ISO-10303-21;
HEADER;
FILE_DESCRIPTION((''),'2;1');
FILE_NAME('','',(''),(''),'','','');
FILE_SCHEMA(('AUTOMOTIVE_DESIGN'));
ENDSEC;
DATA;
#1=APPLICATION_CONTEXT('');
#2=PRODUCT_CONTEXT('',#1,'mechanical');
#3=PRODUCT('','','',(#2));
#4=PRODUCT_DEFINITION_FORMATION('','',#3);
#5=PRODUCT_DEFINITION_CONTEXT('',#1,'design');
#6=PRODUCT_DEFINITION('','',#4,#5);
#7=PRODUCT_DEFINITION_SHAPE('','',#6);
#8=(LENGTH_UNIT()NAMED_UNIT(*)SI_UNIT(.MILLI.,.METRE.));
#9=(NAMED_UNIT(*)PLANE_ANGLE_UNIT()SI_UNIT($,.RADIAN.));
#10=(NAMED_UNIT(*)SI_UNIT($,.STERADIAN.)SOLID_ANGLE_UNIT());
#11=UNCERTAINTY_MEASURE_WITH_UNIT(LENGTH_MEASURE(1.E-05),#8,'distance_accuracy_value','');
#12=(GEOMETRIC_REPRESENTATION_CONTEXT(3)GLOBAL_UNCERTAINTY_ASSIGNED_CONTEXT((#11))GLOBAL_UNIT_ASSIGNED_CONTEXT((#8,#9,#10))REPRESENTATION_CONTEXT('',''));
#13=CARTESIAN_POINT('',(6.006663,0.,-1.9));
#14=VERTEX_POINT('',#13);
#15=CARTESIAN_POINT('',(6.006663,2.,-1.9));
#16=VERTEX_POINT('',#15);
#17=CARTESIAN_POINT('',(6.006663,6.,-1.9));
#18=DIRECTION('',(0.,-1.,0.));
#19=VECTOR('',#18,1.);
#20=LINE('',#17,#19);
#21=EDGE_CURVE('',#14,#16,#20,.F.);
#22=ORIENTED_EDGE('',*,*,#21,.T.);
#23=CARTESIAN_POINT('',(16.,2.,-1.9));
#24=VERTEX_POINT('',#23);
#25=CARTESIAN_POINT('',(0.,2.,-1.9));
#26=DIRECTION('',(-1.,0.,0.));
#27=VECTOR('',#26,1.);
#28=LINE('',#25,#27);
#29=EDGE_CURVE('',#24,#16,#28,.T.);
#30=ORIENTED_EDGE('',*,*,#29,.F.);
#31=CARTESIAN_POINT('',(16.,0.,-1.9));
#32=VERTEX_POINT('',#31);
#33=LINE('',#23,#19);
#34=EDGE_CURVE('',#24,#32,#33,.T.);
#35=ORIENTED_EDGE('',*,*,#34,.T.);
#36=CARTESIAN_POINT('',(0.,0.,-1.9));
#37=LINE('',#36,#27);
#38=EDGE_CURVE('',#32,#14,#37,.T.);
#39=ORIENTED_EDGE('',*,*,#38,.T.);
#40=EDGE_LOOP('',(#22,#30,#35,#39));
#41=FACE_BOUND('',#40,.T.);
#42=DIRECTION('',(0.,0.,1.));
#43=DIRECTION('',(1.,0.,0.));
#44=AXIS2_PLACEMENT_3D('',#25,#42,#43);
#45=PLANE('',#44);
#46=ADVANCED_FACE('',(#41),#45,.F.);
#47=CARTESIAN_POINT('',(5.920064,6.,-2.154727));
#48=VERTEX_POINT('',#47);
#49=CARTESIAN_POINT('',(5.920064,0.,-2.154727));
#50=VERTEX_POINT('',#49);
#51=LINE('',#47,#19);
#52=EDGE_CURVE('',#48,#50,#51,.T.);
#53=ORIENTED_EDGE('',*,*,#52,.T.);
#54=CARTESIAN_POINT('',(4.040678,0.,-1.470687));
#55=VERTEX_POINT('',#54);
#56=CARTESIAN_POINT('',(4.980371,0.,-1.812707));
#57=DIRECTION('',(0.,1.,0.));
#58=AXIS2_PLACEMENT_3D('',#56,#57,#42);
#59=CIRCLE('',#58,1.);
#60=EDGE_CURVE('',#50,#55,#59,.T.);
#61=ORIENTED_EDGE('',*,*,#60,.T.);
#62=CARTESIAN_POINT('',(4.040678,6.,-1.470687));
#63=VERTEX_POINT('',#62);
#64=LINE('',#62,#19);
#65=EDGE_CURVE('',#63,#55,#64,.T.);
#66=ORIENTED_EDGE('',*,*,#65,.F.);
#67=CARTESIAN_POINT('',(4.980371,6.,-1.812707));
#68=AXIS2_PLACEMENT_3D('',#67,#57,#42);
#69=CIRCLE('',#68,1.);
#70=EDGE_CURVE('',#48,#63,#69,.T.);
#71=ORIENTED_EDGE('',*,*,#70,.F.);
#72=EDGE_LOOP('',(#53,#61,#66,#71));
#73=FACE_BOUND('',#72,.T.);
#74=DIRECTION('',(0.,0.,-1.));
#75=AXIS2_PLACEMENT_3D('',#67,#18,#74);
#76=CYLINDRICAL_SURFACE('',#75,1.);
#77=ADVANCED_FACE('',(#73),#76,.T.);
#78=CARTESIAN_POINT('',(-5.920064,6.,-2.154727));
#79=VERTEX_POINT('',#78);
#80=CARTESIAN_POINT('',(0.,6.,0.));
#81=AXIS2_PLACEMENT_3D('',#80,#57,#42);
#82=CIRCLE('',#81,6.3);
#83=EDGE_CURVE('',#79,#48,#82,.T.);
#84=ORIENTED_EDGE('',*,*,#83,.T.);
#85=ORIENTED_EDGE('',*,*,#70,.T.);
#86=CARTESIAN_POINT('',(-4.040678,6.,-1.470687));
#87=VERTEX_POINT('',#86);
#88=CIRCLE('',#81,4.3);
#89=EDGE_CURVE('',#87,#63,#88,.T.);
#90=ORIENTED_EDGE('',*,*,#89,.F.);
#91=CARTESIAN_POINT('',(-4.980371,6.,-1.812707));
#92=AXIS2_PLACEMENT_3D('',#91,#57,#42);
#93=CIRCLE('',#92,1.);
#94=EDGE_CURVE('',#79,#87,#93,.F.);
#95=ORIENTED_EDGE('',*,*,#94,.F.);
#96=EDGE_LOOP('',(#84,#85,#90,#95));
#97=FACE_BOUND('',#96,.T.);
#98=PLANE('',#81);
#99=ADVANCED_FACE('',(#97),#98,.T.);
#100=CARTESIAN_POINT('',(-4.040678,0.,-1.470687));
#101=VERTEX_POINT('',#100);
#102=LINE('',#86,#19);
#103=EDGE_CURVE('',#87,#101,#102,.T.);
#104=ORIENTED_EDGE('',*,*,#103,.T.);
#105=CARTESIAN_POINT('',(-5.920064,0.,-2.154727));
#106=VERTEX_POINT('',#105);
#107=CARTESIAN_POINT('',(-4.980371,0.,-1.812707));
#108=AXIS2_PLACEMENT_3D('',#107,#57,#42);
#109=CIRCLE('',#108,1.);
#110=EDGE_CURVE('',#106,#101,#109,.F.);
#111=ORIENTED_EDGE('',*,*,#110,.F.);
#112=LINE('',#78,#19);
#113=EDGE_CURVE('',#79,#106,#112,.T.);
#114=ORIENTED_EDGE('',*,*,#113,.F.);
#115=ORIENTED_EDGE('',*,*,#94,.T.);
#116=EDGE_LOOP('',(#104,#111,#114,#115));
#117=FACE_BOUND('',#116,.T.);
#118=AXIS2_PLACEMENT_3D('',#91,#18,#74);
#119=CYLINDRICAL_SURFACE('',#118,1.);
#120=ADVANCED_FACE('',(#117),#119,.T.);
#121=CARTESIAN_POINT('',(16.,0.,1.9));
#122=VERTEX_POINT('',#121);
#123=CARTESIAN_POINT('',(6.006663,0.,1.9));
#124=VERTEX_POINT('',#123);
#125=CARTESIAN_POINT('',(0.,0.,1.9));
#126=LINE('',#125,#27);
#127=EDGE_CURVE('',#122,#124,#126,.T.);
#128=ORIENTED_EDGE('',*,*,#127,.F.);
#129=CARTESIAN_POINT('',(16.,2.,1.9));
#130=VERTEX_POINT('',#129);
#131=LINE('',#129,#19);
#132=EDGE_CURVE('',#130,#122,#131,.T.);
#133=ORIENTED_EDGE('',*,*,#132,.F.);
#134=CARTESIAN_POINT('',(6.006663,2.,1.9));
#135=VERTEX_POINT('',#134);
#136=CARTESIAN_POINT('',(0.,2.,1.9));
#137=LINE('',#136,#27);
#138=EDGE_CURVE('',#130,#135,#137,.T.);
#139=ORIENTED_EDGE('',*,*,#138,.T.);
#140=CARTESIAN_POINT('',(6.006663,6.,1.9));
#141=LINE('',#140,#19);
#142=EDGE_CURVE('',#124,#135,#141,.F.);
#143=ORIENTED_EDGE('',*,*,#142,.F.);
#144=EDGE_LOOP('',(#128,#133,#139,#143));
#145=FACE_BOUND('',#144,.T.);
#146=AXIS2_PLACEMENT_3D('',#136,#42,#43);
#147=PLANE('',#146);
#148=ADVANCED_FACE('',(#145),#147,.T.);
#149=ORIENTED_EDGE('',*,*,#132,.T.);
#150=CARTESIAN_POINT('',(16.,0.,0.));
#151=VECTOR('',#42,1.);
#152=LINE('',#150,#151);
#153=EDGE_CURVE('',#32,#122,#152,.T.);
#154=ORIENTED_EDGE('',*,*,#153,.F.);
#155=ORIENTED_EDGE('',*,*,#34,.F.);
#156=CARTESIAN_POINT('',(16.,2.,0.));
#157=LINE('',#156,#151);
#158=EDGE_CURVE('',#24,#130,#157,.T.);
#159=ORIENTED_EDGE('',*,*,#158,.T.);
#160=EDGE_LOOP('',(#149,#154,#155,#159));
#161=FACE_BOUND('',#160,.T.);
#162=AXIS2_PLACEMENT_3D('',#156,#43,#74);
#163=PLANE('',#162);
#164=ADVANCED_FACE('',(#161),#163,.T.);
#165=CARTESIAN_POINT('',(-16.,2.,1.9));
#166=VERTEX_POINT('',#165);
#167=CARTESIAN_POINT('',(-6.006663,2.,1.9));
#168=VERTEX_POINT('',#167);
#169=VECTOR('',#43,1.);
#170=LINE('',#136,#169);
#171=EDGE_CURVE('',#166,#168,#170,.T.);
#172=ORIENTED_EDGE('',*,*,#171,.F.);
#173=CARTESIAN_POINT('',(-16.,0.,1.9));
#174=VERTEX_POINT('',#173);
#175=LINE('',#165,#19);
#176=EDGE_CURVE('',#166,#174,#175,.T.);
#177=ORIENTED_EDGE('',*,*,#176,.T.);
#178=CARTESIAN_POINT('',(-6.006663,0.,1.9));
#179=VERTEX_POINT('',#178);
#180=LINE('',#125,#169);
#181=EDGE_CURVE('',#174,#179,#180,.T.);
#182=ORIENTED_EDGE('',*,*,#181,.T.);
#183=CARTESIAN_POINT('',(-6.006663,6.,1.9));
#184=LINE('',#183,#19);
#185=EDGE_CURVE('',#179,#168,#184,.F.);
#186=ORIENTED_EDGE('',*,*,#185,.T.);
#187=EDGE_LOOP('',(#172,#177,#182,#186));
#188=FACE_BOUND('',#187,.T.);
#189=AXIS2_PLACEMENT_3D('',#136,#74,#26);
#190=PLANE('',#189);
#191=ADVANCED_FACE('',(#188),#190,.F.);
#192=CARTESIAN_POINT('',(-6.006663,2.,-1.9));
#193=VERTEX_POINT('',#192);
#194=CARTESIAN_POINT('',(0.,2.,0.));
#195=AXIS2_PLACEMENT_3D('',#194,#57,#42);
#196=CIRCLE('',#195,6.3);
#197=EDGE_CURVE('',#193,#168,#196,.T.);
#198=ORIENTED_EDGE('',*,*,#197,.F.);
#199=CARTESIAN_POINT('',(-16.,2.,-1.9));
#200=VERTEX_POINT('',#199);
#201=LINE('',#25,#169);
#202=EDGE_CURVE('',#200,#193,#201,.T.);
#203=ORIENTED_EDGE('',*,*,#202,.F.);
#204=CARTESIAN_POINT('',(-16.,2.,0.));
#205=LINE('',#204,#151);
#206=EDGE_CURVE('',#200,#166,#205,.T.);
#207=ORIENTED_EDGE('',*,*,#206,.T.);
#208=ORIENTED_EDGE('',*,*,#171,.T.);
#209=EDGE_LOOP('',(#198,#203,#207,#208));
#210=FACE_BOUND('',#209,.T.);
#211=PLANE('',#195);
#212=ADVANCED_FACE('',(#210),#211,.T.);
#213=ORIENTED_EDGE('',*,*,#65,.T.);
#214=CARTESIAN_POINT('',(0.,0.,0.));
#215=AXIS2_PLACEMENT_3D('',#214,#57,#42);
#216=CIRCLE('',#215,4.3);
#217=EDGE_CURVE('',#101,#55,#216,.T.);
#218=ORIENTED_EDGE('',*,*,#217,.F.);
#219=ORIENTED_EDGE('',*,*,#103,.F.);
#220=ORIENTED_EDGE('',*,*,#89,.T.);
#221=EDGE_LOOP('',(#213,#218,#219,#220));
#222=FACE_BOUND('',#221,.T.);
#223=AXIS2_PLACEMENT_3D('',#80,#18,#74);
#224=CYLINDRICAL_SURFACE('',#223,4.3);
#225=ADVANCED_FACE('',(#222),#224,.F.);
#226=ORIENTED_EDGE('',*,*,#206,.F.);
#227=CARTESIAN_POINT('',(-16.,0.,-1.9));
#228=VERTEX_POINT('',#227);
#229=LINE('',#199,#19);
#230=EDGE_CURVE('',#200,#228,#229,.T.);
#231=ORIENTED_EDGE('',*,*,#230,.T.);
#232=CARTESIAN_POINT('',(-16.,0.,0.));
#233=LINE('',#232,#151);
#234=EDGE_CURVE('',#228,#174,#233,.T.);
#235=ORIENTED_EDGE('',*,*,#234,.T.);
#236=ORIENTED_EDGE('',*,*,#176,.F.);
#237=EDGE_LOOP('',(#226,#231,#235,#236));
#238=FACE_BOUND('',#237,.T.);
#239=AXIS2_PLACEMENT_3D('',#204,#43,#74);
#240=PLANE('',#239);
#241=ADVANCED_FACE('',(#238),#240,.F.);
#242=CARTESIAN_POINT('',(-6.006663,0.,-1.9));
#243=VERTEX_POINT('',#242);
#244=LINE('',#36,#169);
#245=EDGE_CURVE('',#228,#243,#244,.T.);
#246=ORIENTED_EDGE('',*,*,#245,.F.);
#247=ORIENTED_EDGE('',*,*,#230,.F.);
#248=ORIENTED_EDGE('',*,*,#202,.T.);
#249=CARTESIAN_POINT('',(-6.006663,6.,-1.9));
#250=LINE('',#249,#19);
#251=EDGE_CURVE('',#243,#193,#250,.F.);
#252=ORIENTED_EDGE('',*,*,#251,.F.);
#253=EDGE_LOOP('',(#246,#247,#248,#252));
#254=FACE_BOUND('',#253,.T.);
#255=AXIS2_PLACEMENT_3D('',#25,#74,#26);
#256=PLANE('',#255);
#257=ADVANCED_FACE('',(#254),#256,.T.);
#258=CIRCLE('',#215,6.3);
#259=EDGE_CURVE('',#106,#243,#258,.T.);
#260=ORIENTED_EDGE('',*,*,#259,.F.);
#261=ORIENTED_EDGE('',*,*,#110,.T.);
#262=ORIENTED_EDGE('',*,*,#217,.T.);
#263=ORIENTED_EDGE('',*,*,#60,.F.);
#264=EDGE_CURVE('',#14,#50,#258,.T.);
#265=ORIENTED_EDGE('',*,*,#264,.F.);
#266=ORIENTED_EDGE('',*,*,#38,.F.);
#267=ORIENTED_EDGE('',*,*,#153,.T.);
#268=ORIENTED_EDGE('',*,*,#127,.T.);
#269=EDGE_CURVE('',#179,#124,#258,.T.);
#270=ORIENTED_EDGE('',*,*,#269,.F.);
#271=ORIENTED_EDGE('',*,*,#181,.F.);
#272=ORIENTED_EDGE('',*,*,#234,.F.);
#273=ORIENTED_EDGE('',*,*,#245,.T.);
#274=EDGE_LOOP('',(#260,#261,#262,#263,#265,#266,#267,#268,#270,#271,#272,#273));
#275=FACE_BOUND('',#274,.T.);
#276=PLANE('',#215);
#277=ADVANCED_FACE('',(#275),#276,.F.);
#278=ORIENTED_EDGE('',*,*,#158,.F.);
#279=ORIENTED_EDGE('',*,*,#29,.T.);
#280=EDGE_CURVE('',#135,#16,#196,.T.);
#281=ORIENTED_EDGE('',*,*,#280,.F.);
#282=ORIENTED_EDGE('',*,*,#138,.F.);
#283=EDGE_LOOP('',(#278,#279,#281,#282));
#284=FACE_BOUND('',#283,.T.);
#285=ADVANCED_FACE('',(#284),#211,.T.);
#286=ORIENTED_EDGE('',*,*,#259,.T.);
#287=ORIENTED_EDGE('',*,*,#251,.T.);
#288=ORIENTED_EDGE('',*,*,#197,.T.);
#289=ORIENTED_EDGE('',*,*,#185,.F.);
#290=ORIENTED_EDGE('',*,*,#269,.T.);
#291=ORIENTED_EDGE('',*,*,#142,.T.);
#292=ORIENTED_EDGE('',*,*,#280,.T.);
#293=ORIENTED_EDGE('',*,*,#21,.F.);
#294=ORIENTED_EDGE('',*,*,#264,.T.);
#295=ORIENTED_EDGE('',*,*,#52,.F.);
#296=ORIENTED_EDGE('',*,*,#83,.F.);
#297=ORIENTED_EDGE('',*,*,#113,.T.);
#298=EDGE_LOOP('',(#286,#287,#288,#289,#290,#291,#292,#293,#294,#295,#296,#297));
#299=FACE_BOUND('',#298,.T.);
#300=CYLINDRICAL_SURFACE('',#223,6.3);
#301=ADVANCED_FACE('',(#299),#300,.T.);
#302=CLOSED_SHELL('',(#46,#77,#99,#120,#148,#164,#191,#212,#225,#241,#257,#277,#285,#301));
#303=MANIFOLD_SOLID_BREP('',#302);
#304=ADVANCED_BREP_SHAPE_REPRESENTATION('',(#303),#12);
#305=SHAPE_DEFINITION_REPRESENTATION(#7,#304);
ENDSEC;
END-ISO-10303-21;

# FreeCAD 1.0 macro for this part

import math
import FreeCAD as App
import Part
import Sketcher
from FreeCAD import Vector

doc = App.newDocument("Part")
body = doc.addObject("PartDesign::Body", "Body")

# Sketch on XZ plane
sketch1 = body.newObject("Sketcher::SketchObject", "Sketch")
sketch1.AttachmentSupport = (doc.getObject("XZ_Plane"), [""])
sketch1.MapMode = "FlatFace"
sketch1.addGeometry([
    Part.ArcOfCircle(Part.Circle(Vector(0, 0, 0), Vector(0, 0, 1), 4.3), math.radians(0), math.radians(200)),  # 0
    Part.ArcOfCircle(Part.Circle(Vector(-5, -1.8, 0), Vector(0, 0, 1), 1), math.radians(-160), math.radians(20)),  # 1
    Part.ArcOfCircle(Part.Circle(Vector(0, 0, 0), Vector(0, 0, 1), 6.3), math.radians(0), math.radians(200)),  # 2
    Part.ArcOfCircle(Part.Circle(Vector(0, 0, 0), Vector(0, 0, 1), 6.3), math.radians(-20), math.radians(0)),  # 3
    Part.ArcOfCircle(Part.Circle(Vector(5, -1.8, 0), Vector(0, 0, 1), 1), math.radians(160), math.radians(340)),  # 4
    Part.ArcOfCircle(Part.Circle(Vector(0, 0, 0), Vector(0, 0, 1), 4.3), math.radians(-20), math.radians(0)),  # 5
], False)
sketch1.addConstraint([
    Sketcher.Constraint("Tangent", 0, 2, 1, 2),
    Sketcher.Constraint("Tangent", 1, 1, 2, 2),
    Sketcher.Constraint("Tangent", 2, 1, 3, 2),
    Sketcher.Constraint("Tangent", 3, 1, 4, 2),
    Sketcher.Constraint("Tangent", 4, 1, 5, 1),
    Sketcher.Constraint("Tangent", 5, 2, 0, 1),
    Sketcher.Constraint("Coincident", 0, 3, -1, 1),
    Sketcher.Constraint("Coincident", 2, 3, -1, 1),
    Sketcher.Constraint("Equal", 2, 3),
    Sketcher.Constraint("Equal", 1, 4),
    Sketcher.Constraint("PointOnObject", 2, 1, -1),
    Sketcher.Constraint("PointOnObject", 5, 2, -1),
    Sketcher.Constraint("Horizontal", 1, 3, 4, 3),
    Sketcher.Constraint("Radius", 1, 1.0),
    Sketcher.Constraint("Radius", 0, 4.3),
    Sketcher.Constraint("DistanceX", 1, 3, -1, 1, 4.980371),
])
pad1 = body.newObject("PartDesign::Pad", "Pad")
pad1.Profile = sketch1
pad1.Length = 6
pad1.Reversed = True

# Sketch on XZ plane
sketch2 = body.newObject("Sketcher::SketchObject", "Sketch001")
sketch2.AttachmentSupport = (doc.getObject("XZ_Plane"), [""])
sketch2.MapMode = "FlatFace"
sketch2.addGeometry([
    Part.LineSegment(Vector(-16, -1.9, 0), Vector(-16, 1.9, 0)),  # 0
    Part.LineSegment(Vector(-16, 1.9, 0), Vector(-4.5, 1.9, 0)),  # 1
    Part.LineSegment(Vector(-4.5, 1.9, 0), Vector(-4.5, -1.9, 0)),  # 2
    Part.LineSegment(Vector(-4.5, -1.9, 0), Vector(-16, -1.9, 0)),  # 3
    Part.LineSegment(Vector(4.5, 1.9, 0), Vector(16, 1.9, 0)),  # 4
    Part.LineSegment(Vector(16, 1.9, 0), Vector(16, -1.9, 0)),  # 5
    Part.LineSegment(Vector(16, -1.9, 0), Vector(4.5, -1.9, 0)),  # 6
    Part.LineSegment(Vector(4.5, -1.9, 0), Vector(4.5, 1.9, 0)),  # 7
], False)
sketch2.addConstraint([
    Sketcher.Constraint("Coincident", 0, 2, 1, 1),
    Sketcher.Constraint("Coincident", 1, 2, 2, 1),
    Sketcher.Constraint("Coincident", 2, 2, 3, 1),
    Sketcher.Constraint("Coincident", 3, 2, 0, 1),
    Sketcher.Constraint("Coincident", 4, 2, 5, 1),
    Sketcher.Constraint("Coincident", 5, 2, 6, 1),
    Sketcher.Constraint("Coincident", 6, 2, 7, 1),
    Sketcher.Constraint("Coincident", 7, 2, 4, 1),
    Sketcher.Constraint("Vertical", 0),
    Sketcher.Constraint("Horizontal", 1),
    Sketcher.Constraint("Vertical", 2),
    Sketcher.Constraint("Horizontal", 3),
    Sketcher.Constraint("Horizontal", 4),
    Sketcher.Constraint("Vertical", 5),
    Sketcher.Constraint("Horizontal", 6),
    Sketcher.Constraint("Vertical", 7),
    Sketcher.Constraint("Symmetric", 3, 2, 4, 2, -1, 1),
    Sketcher.Constraint("Symmetric", 1, 2, 6, 2, -1, 1),
    Sketcher.Constraint("Horizontal", 1, 2, 4, 2),
    Sketcher.Constraint("DistanceX", 1, 1, 1, 2, 11.5),
    Sketcher.Constraint("DistanceY", 0, 1, 0, 2, 3.8),
    Sketcher.Constraint("DistanceX", 0, 2, -1, 1, 16.0),
])
pad2 = body.newObject("PartDesign::Pad", "Pad001")
pad2.Profile = sketch2
pad2.Length = 2
pad2.Reversed = True

doc.recompute()
